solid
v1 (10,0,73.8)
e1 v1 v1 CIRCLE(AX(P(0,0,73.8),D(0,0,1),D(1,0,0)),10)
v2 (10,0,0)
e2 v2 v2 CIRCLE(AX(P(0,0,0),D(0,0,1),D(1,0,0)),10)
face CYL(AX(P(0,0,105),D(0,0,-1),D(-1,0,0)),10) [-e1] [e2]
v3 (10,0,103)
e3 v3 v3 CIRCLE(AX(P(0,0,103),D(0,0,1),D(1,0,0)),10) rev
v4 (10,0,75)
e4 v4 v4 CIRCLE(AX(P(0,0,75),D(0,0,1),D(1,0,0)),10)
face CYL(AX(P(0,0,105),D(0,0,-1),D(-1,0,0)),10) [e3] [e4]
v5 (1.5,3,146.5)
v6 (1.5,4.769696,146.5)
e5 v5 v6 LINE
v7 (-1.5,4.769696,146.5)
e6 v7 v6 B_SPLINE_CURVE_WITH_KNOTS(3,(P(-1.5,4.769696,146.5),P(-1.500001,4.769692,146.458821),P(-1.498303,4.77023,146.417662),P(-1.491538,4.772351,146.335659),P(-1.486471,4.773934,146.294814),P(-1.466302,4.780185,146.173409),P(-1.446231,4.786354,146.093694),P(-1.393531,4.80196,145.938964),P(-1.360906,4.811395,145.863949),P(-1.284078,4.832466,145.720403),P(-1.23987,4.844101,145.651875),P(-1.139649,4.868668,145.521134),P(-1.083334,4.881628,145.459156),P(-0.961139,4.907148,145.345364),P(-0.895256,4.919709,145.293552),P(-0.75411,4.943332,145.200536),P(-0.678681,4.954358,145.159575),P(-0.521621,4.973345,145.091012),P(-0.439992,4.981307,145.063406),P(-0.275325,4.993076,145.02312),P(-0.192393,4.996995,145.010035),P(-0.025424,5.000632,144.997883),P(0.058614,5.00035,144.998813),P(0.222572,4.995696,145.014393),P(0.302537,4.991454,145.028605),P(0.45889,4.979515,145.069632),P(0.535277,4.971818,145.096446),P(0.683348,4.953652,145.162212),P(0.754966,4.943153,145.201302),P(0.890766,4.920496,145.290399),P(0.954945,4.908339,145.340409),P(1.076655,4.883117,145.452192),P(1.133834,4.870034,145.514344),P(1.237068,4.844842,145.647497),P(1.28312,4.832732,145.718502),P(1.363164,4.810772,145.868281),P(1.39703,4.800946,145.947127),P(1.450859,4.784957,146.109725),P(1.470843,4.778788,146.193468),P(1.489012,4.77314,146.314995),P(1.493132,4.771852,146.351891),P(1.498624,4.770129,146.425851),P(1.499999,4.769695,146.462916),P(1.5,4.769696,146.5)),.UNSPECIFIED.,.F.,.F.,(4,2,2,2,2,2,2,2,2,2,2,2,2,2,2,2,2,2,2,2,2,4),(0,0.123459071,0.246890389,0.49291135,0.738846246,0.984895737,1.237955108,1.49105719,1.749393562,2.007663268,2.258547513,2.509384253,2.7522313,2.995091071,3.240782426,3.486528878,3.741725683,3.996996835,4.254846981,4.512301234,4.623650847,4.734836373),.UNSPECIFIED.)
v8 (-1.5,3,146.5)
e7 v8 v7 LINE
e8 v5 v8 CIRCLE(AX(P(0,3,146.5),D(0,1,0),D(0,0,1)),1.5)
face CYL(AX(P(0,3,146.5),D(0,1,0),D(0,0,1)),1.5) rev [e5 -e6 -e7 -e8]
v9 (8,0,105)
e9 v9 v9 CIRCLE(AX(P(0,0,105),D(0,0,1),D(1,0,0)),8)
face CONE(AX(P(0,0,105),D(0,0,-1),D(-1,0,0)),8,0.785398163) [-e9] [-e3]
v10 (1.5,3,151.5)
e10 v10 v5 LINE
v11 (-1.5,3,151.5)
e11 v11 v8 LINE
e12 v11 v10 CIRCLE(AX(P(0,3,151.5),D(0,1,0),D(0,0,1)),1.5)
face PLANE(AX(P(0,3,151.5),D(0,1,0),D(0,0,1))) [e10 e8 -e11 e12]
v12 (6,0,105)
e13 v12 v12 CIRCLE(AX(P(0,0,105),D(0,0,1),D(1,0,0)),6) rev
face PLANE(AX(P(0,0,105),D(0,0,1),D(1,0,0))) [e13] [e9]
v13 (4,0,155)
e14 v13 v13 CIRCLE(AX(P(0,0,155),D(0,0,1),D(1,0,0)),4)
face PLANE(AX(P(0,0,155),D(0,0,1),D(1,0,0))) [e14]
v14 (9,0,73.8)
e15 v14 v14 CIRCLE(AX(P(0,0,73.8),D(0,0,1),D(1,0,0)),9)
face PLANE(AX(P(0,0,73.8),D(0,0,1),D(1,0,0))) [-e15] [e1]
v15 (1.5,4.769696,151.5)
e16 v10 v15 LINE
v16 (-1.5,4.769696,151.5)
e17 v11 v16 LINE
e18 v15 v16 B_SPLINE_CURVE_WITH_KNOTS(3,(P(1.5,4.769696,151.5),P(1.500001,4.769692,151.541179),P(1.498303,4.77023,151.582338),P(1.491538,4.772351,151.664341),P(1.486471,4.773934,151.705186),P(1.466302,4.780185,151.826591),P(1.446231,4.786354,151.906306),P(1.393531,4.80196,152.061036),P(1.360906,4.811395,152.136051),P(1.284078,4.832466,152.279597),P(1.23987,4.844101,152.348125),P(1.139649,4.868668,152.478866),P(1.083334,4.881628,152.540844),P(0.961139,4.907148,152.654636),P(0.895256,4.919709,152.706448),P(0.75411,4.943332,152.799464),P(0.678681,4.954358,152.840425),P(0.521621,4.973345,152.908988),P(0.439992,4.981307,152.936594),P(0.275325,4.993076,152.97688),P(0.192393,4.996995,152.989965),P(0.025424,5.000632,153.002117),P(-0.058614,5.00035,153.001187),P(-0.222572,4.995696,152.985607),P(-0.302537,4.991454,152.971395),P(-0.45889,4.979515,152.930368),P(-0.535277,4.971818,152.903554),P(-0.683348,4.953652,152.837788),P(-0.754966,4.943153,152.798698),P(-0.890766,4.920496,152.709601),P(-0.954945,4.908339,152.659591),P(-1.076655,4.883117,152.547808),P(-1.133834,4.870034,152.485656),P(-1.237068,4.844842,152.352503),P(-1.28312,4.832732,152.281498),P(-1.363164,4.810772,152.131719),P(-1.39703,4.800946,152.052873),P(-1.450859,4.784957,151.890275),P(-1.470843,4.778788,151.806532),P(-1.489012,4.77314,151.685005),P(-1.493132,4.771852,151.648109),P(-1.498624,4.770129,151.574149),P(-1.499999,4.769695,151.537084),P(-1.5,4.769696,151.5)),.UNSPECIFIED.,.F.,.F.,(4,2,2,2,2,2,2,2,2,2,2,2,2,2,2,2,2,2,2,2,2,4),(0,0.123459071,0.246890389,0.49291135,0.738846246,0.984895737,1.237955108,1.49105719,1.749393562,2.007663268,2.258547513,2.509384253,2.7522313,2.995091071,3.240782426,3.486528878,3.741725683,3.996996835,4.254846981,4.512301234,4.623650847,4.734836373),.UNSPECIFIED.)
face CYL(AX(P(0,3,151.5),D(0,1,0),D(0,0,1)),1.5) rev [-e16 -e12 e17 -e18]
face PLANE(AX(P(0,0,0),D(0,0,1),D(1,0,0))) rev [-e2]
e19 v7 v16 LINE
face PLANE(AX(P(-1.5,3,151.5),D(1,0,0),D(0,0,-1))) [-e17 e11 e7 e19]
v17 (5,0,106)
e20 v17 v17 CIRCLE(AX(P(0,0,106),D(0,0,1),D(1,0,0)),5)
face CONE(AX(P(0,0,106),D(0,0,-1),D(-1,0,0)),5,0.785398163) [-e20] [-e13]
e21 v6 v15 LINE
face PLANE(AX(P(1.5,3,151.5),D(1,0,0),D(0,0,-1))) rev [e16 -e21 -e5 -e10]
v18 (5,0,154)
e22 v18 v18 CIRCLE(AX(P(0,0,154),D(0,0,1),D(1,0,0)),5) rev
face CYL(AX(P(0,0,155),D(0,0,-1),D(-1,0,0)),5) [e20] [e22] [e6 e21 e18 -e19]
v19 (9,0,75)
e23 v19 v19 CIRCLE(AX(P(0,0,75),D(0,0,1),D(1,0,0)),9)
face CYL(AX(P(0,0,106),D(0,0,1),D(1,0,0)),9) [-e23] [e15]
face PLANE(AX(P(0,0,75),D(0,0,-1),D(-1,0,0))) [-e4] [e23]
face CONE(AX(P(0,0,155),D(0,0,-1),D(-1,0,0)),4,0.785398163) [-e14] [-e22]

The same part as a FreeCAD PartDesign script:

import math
import FreeCAD as App
import Part
import Sketcher
from FreeCAD import Vector
Q = App.Units.Quantity


def edges_at(feature, points):
    """Names of the edges that pass closest to the given points."""
    edges = feature.Shape.Edges
    near = lambda p: min(range(len(edges)), key=lambda i: edges[i].distToShape(Part.Vertex(*p))[0])
    return sorted({f"Edge{near(p) + 1}" for p in points})

doc = App.newDocument("Part")
body = doc.addObject("PartDesign::Body", "Body")

sketch1 = doc.addObject("Sketcher::SketchObject", "Sketch")
body.addObject(sketch1)
sketch1.AttachmentSupport = (doc.XY_Plane, [""])
sketch1.MapMode = "FlatFace"
sketch1.addGeometry(Part.Circle(Vector(0, 0, 0), Vector(0, 0, 1), 10), False)
sketch1.addConstraint(Sketcher.Constraint("Coincident", 0, 3, -1, 1))
sketch1.addConstraint(Sketcher.Constraint("Diameter", 0, Q("20 mm")))
pad1 = doc.addObject("PartDesign::Pad", "Pad")
body.addObject(pad1)
pad1.Profile = sketch1
pad1.Length = 105

sketch2 = doc.addObject("Sketcher::SketchObject", "Sketch001")
body.addObject(sketch2)
sketch2.AttachmentSupport = (doc.XY_Plane, [""])
sketch2.MapMode = "FlatFace"
sketch2.AttachmentOffset = App.Placement(Vector(0, 0, 105), App.Rotation())
sketch2.addGeometry(Part.Circle(Vector(0, 0, 0), Vector(0, 0, 1), 5), False)
sketch2.addConstraint(Sketcher.Constraint("Coincident", 0, 3, -1, 1))
sketch2.addConstraint(Sketcher.Constraint("Diameter", 0, Q("10 mm")))
pad2 = doc.addObject("PartDesign::Pad", "Pad001")
body.addObject(pad2)
pad2.Profile = sketch2
pad2.Length = 50

sketch3 = doc.addObject("Sketcher::SketchObject", "Sketch002")
body.addObject(sketch3)
sketch3.AttachmentSupport = (doc.XZ_Plane, [""])
sketch3.MapMode = "FlatFace"
sketch3.AttachmentOffset = App.Placement(Vector(0, 0, -5), App.Rotation())
sketch3.addGeometry(Part.LineSegment(Vector(-1.5, 146.5, 0), Vector(-1.5, 151.5, 0)), False)
sketch3.addGeometry(Part.ArcOfCircle(Part.Circle(Vector(0, 151.5, 0), Vector(0, 0, 1), 1.5), math.radians(0), math.radians(180)), False)
sketch3.addGeometry(Part.LineSegment(Vector(1.5, 151.5, 0), Vector(1.5, 146.5, 0)), False)
sketch3.addGeometry(Part.ArcOfCircle(Part.Circle(Vector(0, 146.5, 0), Vector(0, 0, 1), 1.5), math.radians(180), math.radians(360)), False)
sketch3.addConstraint(Sketcher.Constraint("Tangent", 0, 2, 1, 2))
sketch3.addConstraint(Sketcher.Constraint("Tangent", 1, 1, 2, 1))
sketch3.addConstraint(Sketcher.Constraint("Tangent", 2, 2, 3, 2))
sketch3.addConstraint(Sketcher.Constraint("Tangent", 3, 1, 0, 1))
sketch3.addConstraint(Sketcher.Constraint("Vertical", 0))
sketch3.addConstraint(Sketcher.Constraint("Vertical", 2))
sketch3.addConstraint(Sketcher.Constraint("PointOnObject", 1, 3, -2))
sketch3.addConstraint(Sketcher.Constraint("Radius", 1, Q("1.5 mm")))
sketch3.addConstraint(Sketcher.Constraint("DistanceY", 0, 1, 0, 2, Q("5 mm")))
sketch3.addConstraint(Sketcher.Constraint("DistanceY", -1, 1, 1, 3, Q("151.5 mm")))
pocket1 = doc.addObject("PartDesign::Pocket", "Pocket")
body.addObject(pocket1)
pocket1.Profile = sketch3
pocket1.Length = 2
pocket1.Reversed = True
doc.recompute()

chamfer = doc.addObject("PartDesign::Chamfer", "Chamfer")
body.addObject(chamfer)
chamfer.Base = (pocket1, edges_at(pocket1, [(-5, 0, 105)]))
chamfer.Size = 1
doc.recompute()

chamfer2 = doc.addObject("PartDesign::Chamfer", "Chamfer001")
body.addObject(chamfer2)
chamfer2.Base = (chamfer, edges_at(chamfer, [(-10, 0, 105)]))
chamfer2.Size = 2
doc.recompute()

chamfer3 = doc.addObject("PartDesign::Chamfer", "Chamfer002")
body.addObject(chamfer3)
chamfer3.Base = (chamfer2, edges_at(chamfer2, [(-5, 0, 155)]))
chamfer3.Size = 1

sketch4 = doc.addObject("Sketcher::SketchObject", "Sketch003")
body.addObject(sketch4)
sketch4.AttachmentSupport = (doc.XZ_Plane, [""])
sketch4.MapMode = "FlatFace"
sketch4.addGeometry(Part.LineSegment(Vector(-10, 73.8, 0), Vector(-10, 75, 0)), False)
sketch4.addGeometry(Part.LineSegment(Vector(-10, 75, 0), Vector(-9, 75, 0)), False)
sketch4.addGeometry(Part.LineSegment(Vector(-9, 75, 0), Vector(-9, 73.8, 0)), False)
sketch4.addGeometry(Part.LineSegment(Vector(-9, 73.8, 0), Vector(-10, 73.8, 0)), False)
sketch4.addConstraint(Sketcher.Constraint("Coincident", 0, 2, 1, 1))
sketch4.addConstraint(Sketcher.Constraint("Coincident", 1, 2, 2, 1))
sketch4.addConstraint(Sketcher.Constraint("Coincident", 2, 2, 3, 1))
sketch4.addConstraint(Sketcher.Constraint("Coincident", 3, 2, 0, 1))
sketch4.addConstraint(Sketcher.Constraint("Vertical", 0))
sketch4.addConstraint(Sketcher.Constraint("Horizontal", 1))
sketch4.addConstraint(Sketcher.Constraint("Vertical", 2))
sketch4.addConstraint(Sketcher.Constraint("Horizontal", 3))
sketch4.addConstraint(Sketcher.Constraint("DistanceX", 1, 1, 1, 2, Q("1 mm")))
sketch4.addConstraint(Sketcher.Constraint("DistanceY", 0, 1, 0, 2, Q("1.2 mm")))
sketch4.addConstraint(Sketcher.Constraint("DistanceX", 0, 2, -1, 1, Q("10 mm")))
sketch4.addConstraint(Sketcher.Constraint("DistanceY", -1, 1, 0, 2, Q("75 mm")))
groove = doc.addObject("PartDesign::Groove", "Groove")
body.addObject(groove)
groove.Profile = sketch4
groove.ReferenceAxis = (sketch4, ["V_Axis"])
groove.Angle = 360

doc.recompute()
